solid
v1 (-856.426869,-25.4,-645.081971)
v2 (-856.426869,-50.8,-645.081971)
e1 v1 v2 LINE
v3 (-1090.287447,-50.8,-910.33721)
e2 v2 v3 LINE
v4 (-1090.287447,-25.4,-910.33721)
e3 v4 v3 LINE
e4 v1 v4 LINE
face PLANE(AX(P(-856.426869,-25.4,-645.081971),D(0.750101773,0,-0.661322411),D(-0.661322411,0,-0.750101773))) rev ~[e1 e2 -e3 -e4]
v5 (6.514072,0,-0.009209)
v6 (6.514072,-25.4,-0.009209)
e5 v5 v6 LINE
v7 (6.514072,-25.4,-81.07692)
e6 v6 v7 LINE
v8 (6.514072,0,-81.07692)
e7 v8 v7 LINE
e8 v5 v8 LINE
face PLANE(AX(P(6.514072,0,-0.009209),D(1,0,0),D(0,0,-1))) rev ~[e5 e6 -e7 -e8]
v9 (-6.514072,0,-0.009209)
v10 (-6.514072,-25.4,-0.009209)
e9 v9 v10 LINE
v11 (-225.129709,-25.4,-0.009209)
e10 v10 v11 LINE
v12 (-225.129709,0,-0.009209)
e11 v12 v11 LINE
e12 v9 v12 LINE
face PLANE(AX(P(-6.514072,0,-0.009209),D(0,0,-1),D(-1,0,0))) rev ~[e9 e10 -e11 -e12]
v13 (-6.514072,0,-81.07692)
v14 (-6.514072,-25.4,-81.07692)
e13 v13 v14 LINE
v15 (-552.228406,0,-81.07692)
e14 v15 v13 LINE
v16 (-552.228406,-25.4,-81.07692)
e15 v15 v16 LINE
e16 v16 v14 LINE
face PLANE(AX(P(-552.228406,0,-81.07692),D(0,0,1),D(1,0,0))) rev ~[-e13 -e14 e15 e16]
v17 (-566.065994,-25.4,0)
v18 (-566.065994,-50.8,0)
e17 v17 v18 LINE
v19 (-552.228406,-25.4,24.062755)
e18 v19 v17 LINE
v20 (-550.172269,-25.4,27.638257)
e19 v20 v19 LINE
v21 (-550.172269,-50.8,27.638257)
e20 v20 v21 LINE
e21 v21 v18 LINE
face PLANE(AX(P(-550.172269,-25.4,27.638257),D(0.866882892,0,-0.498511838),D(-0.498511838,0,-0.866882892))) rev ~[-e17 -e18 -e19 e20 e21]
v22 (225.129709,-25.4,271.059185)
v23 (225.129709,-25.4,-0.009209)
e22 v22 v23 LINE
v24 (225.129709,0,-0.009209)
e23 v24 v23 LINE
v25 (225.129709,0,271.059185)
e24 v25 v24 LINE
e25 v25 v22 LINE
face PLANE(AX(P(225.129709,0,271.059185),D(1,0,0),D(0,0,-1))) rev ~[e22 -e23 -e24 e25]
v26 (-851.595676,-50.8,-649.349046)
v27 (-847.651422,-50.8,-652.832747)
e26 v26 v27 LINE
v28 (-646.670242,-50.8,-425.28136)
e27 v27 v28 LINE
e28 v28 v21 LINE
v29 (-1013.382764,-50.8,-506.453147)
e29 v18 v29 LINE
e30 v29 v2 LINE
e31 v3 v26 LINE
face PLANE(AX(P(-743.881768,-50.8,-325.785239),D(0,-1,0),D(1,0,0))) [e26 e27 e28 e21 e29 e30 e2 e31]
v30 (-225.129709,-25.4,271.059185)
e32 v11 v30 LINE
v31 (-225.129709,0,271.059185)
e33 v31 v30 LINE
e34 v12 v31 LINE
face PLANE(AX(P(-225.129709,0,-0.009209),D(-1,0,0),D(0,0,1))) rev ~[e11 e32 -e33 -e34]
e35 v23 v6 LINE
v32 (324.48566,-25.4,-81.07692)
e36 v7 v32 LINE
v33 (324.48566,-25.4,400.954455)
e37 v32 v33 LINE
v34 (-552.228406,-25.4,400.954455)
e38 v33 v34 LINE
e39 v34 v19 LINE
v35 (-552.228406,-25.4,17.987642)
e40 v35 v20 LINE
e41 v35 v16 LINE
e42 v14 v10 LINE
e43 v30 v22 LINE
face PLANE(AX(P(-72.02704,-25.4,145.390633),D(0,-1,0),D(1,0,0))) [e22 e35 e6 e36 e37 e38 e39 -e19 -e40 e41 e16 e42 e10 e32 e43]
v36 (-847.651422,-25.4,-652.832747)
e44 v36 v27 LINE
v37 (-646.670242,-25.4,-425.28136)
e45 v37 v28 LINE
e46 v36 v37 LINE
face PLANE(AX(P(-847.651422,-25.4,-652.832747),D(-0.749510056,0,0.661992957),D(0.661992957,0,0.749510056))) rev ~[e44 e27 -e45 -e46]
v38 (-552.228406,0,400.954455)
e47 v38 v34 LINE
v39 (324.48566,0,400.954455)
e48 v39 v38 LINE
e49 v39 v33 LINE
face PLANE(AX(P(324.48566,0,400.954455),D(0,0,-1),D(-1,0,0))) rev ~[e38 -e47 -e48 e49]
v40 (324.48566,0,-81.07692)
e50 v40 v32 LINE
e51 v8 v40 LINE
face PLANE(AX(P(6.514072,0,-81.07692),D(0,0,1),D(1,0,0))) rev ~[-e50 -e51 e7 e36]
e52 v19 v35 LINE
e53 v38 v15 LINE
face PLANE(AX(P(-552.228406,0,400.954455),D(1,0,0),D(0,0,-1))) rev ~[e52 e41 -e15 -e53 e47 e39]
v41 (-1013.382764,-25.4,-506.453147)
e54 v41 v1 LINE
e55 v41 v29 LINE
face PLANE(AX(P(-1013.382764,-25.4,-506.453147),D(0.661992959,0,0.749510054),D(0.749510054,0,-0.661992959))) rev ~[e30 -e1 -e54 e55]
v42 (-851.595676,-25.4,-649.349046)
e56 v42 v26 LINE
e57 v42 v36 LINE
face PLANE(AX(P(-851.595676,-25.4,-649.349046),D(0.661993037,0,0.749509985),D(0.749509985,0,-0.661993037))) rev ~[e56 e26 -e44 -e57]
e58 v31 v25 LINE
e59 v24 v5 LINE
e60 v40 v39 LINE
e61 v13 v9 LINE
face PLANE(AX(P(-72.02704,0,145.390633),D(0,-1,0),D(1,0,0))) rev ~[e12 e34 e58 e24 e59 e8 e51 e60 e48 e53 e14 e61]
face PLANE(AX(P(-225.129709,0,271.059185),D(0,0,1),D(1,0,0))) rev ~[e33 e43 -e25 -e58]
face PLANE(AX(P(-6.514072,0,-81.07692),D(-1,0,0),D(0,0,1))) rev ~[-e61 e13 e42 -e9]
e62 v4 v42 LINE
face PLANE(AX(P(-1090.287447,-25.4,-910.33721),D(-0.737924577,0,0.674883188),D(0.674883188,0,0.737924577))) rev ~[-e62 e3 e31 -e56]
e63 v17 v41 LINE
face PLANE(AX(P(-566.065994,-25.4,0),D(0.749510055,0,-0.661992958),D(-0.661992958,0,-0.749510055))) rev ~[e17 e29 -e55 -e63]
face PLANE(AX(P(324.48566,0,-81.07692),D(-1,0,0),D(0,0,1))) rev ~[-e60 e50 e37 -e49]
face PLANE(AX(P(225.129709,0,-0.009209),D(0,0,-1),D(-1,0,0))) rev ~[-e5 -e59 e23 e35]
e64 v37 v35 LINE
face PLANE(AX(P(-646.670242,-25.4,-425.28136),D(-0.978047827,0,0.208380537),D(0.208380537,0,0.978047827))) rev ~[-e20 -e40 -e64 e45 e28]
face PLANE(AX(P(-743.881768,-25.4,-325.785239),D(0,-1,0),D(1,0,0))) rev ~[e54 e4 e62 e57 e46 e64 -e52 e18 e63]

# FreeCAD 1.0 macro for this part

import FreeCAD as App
import Part
import Sketcher
from FreeCAD import Vector
Q = App.Units.Quantity


def add_polygon(sketch, points):
    """Adds a closed chain of lines whose ends are joined by coincident constraints."""
    first, n = sketch.GeometryCount, len(points)
    for a, b in zip(points, points[1:] + points[:1]):
        sketch.addGeometry(Part.LineSegment(App.Vector(*a, 0), App.Vector(*b, 0)), False)
    for i in range(n):
        sketch.addConstraint(Sketcher.Constraint("Coincident", first + i, 2, first + (i + 1) % n, 1))

doc = App.newDocument("Part")
body = doc.addObject("PartDesign::Body", "Body")

sketch1 = body.newObject("Sketcher::SketchObject", "Sketch")
sketch1.AttachmentSupport = (doc.getObject("XZ_Plane"), [""])
sketch1.MapMode = "FlatFace"
add_polygon(sketch1, [(-225, 0), (-225, 271), (225, 271), (225, 0), (7, 0), (7, -81), (324, -81), (324, 401), (-552, 401), (-552, -81), (-7, -81), (-7, 0)])
sketch1.addConstraint([
    Sketcher.Constraint("Vertical", 0),
    Sketcher.Constraint("Horizontal", 1),
    Sketcher.Constraint("Vertical", 2),
    Sketcher.Constraint("Horizontal", 3),
    Sketcher.Constraint("Vertical", 4),
    Sketcher.Constraint("Horizontal", 5),
    Sketcher.Constraint("Vertical", 6),
    Sketcher.Constraint("Horizontal", 7),
    Sketcher.Constraint("Vertical", 8),
    Sketcher.Constraint("Horizontal", 9),
    Sketcher.Constraint("Vertical", 10),
    Sketcher.Constraint("Horizontal", 11),
    Sketcher.Constraint("Symmetric", 4, 2, 9, 2, -2),
    Sketcher.Constraint("Symmetric", 2, 2, 11, 2, -2),
    Sketcher.Constraint("DistanceX", 1, 1, 1, 2, 450.259418),
    Sketcher.Constraint("DistanceX", 5, 1, 5, 2, 317.971588),
    Sketcher.Constraint("DistanceY", 4, 2, 4, 1, 81.067711),
    Sketcher.Constraint("DistanceX", 3, 2, 3, 1, 218.615637),
    Sketcher.Constraint("DistanceX", 7, 2, 7, 1, 876.714066),
    Sketcher.Constraint("DistanceY", 0, 1, 0, 2, 271.068394),
    Sketcher.Constraint("DistanceY", 6, 1, 6, 2, 482.031375),
    Sketcher.Constraint("DistanceY", 2, 2, -1, 1, 0.009209),
])
pad1 = body.newObject("PartDesign::Pad", "Pad")
pad1.Profile = sketch1
pad1.Length = Q("1 in")

sketch2 = body.newObject("Sketcher::SketchObject", "Sketch001")
sketch2.AttachmentSupport = (doc.getObject("XZ_Plane"), [""])
sketch2.MapMode = "FlatFace"
sketch2.AttachmentOffset = App.Placement(Vector(0, 0, 1 * 25.4), App.Rotation())
add_polygon(sketch2, [(-1013, -506), (-856, -645), (-1090, -910), (-852, -649), (-848, -653), (-647, -425), (-550, 28), (-566, 0)])
sketch2.addConstraint([
    Sketcher.Constraint("PointOnObject", 6, 2, -1),
    Sketcher.Constraint("Parallel", 0, 3),
    Sketcher.Constraint("Perpendicular", 3, 4),
    Sketcher.Constraint("Parallel", 4, 7),
    Sketcher.Constraint("DistanceY", 3, 2, 2, 2, 3.483701),
    Sketcher.Constraint("DistanceX", 0, 2, 5, 2, 306.2546),
    Sketcher.Constraint("DistanceY", 2, 2, 7, 2, 142.895899),
    Sketcher.Constraint("Distance", 4, 303.600179),
    Sketcher.Constraint("Distance", 7, 675.712278),
    Sketcher.Constraint("DistanceX", 0, 2, -1, 1, 856.426869),
    Sketcher.Constraint("DistanceY", 0, 2, -1, 1, 645.081971),
    Sketcher.Constraint("DistanceY", 1, 2, -1, 1, 910.33721),
    Sketcher.Constraint("DistanceX", 3, 2, -1, 1, 847.651422),
    Sketcher.Constraint("DistanceX", 4, 2, -1, 1, 646.670242),
    Sketcher.Constraint("DistanceX", 1, 2, 2, 2, 238.691771),
    Sketcher.Constraint("Distance", 5, 463.085347),
])
pad2 = body.newObject("PartDesign::Pad", "Pad001")
pad2.Profile = sketch2
pad2.Length = Q("1 in")

doc.recompute()
